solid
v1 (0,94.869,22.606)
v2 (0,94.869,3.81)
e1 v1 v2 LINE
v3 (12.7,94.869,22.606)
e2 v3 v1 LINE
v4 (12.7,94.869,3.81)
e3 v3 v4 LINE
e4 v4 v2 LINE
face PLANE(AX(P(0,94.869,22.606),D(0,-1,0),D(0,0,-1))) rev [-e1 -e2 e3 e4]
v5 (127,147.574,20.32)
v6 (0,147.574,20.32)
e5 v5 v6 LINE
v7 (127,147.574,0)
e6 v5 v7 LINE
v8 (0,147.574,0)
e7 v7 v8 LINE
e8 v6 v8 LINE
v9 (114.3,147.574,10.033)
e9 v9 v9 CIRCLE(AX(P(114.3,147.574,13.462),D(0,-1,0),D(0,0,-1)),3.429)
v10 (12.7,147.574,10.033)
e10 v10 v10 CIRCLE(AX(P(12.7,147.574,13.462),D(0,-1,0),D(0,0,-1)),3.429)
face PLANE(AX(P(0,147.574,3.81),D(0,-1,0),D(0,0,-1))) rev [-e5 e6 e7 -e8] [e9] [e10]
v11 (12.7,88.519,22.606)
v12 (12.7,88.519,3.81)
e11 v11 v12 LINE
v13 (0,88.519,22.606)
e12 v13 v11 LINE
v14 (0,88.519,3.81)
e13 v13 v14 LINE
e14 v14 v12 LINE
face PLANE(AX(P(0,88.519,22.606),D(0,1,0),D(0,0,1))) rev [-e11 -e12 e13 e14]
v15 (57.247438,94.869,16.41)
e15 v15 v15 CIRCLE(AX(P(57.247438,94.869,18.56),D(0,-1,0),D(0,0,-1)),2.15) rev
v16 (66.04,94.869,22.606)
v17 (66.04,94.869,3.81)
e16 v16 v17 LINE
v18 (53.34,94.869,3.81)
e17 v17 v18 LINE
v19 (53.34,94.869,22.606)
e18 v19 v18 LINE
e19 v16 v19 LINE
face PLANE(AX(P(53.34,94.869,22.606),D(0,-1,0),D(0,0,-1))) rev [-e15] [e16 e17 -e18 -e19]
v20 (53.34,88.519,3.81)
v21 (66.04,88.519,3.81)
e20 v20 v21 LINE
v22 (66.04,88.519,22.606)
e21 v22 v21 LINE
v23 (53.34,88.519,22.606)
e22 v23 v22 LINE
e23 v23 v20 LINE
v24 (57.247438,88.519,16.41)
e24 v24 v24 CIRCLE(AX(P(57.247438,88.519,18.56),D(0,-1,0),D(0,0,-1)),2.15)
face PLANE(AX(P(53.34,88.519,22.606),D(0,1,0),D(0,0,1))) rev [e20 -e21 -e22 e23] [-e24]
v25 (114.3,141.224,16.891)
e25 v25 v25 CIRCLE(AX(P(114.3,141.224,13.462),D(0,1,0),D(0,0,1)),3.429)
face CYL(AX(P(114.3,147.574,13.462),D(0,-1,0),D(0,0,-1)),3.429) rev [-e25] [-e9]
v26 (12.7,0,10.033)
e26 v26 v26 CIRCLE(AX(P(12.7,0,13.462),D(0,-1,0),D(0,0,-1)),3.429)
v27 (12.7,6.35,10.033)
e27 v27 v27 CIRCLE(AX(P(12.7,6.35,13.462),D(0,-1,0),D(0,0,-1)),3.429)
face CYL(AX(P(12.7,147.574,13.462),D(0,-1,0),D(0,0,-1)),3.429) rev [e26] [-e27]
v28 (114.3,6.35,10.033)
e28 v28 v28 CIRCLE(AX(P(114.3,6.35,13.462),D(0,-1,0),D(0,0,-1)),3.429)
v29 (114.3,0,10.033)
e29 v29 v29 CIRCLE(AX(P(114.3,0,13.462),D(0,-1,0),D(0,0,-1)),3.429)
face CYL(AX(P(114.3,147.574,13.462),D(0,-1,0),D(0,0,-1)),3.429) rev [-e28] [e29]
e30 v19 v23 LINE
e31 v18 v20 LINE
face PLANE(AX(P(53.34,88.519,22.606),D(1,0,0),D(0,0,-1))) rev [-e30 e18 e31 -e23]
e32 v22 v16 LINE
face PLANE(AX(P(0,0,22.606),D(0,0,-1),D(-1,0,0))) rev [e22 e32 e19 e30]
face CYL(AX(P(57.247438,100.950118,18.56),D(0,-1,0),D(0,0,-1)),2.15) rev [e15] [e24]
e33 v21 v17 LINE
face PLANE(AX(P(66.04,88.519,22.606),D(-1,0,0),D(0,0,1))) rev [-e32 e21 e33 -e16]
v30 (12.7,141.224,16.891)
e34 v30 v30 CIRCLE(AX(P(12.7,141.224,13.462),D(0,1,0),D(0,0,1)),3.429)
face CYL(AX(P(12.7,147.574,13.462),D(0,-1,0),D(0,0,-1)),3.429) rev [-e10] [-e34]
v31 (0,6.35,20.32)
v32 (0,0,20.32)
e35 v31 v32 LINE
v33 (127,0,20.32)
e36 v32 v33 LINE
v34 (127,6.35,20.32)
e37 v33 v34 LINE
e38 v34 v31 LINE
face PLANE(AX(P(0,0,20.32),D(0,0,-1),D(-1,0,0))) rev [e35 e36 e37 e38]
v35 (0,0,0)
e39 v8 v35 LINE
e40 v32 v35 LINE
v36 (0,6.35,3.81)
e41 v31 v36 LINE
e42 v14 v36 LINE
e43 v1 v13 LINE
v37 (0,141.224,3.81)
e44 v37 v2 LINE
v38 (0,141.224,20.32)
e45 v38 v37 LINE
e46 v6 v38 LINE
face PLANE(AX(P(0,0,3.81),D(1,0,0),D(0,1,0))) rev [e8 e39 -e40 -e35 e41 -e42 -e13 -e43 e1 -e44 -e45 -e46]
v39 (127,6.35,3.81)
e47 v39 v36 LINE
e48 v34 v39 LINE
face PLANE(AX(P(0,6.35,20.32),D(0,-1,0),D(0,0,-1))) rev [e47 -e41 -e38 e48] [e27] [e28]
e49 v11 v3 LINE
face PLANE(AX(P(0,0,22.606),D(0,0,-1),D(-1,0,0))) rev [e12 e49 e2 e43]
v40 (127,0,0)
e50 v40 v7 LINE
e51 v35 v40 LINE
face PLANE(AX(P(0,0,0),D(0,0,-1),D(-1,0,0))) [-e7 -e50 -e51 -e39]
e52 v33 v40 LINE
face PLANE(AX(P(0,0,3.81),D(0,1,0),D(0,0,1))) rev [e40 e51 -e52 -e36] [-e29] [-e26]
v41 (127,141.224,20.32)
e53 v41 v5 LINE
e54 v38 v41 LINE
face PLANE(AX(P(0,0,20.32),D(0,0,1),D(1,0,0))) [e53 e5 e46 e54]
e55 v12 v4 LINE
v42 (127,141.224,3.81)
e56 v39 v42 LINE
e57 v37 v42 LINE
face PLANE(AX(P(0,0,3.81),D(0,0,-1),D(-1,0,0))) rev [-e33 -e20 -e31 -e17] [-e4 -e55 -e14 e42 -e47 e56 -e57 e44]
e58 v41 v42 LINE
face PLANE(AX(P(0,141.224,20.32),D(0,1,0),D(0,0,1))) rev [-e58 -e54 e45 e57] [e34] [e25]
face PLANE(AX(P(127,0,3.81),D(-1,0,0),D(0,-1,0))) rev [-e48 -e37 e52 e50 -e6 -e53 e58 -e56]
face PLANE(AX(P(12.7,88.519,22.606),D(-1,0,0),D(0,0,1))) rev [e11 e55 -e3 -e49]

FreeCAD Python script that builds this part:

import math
import FreeCAD as App
import Part
import Sketcher
from FreeCAD import Vector
Q = App.Units.Quantity


def add_polygon(sketch, points):
    """Adds a closed chain of lines whose ends are joined by coincident constraints."""
    first, n = sketch.GeometryCount, len(points)
    for a, b in zip(points, points[1:] + points[:1]):
        sketch.addGeometry(Part.LineSegment(App.Vector(*a, 0), App.Vector(*b, 0)), False)
    for i in range(n):
        sketch.addConstraint(Sketcher.Constraint("Coincident", first + i, 2, first + (i + 1) % n, 1))

doc = App.newDocument("Part")
body = doc.addObject("PartDesign::Body", "Body")

# Sketch on XY plane
sketch1 = body.newObject("Sketcher::SketchObject", "Sketch")
sketch1.AttachmentSupport = (doc.getObject("XY_Plane"), [""])
sketch1.MapMode = "FlatFace"
add_polygon(sketch1, [(0, 148), (0, 0), (127, 0), (127, 148)])  # lines 0-3
sketch1.addConstraint(Sketcher.Constraint("Vertical", 0))
sketch1.addConstraint(Sketcher.Constraint("Horizontal", 1))
sketch1.addConstraint(Sketcher.Constraint("Vertical", 2))
sketch1.addConstraint(Sketcher.Constraint("Horizontal", 3))
sketch1.addConstraint(Sketcher.Constraint("Coincident", 0, 2, -1, 1))
sketch1.addConstraint(Sketcher.Constraint("DistanceX", 1, 1, 1, 2, Q("5 in")))
sketch1.addConstraint(Sketcher.Constraint("DistanceY", 0, 2, 0, 1, Q("5.81 in")))
pad1 = body.newObject("PartDesign::Pad", "Pad")
pad1.Profile = sketch1
pad1.Length = Q("0.15 in")

# Sketch on XY plane
sketch2 = body.newObject("Sketcher::SketchObject", "Sketch001")
sketch2.AttachmentSupport = (doc.getObject("XY_Plane"), [""])
sketch2.MapMode = "FlatFace"
sketch2.AttachmentOffset = App.Placement(Vector(0, 0, 0.15 * 25.4), App.Rotation())
add_polygon(sketch2, [(0, 148), (0, 141), (127, 141), (127, 148)])  # lines 0-3
add_polygon(sketch2, [(0, 6), (0, 0), (127, 0), (127, 6)])  # lines 4-7
sketch2.addConstraint(Sketcher.Constraint("Vertical", 0))
sketch2.addConstraint(Sketcher.Constraint("Horizontal", 1))
sketch2.addConstraint(Sketcher.Constraint("Vertical", 2))
sketch2.addConstraint(Sketcher.Constraint("Horizontal", 3))
sketch2.addConstraint(Sketcher.Constraint("Vertical", 4))
sketch2.addConstraint(Sketcher.Constraint("Horizontal", 5))
sketch2.addConstraint(Sketcher.Constraint("Vertical", 6))
sketch2.addConstraint(Sketcher.Constraint("Horizontal", 7))
sketch2.addConstraint(Sketcher.Constraint("Coincident", 4, 2, -1, 1))
sketch2.addConstraint(Sketcher.Constraint("PointOnObject", 0, 2, -2))
sketch2.addConstraint(Sketcher.Constraint("Vertical", 2, 2, 5, 2))
sketch2.addConstraint(Sketcher.Constraint("Equal", 2, 4))
sketch2.addConstraint(Sketcher.Constraint("DistanceX", 1, 1, 1, 2, Q("5 in")))
sketch2.addConstraint(Sketcher.Constraint("DistanceY", 0, 2, 0, 1, Q("0.25 in")))
sketch2.addConstraint(Sketcher.Constraint("DistanceY", -1, 1, 0, 2, Q("5.56 in")))
pad2 = body.newObject("PartDesign::Pad", "Pad001")
pad2.Profile = sketch2
pad2.Length = Q("0.65 in")

# Sketch on XZ plane
sketch3 = body.newObject("Sketcher::SketchObject", "Sketch002")
sketch3.AttachmentSupport = (doc.getObject("XZ_Plane"), [""])
sketch3.MapMode = "FlatFace"
sketch3.addGeometry(Part.Circle(Vector(12.7, 13.5, 0), Vector(0, 0, 1), 3.4), False)
sketch3.addGeometry(Part.Circle(Vector(114.3, 13.5, 0), Vector(0, 0, 1), 3.4), False)
sketch3.addConstraint(Sketcher.Constraint("Equal", 0, 1))
sketch3.addConstraint(Sketcher.Constraint("Horizontal", 0, 3, 1, 3))
sketch3.addConstraint(Sketcher.Constraint("Diameter", 0, Q("0.27 in")))
sketch3.addConstraint(Sketcher.Constraint("DistanceX", 0, 3, 1, 3, Q("4 in")))
sketch3.addConstraint(Sketcher.Constraint("DistanceX", -1, 1, 0, 3, Q("0.5 in")))
sketch3.addConstraint(Sketcher.Constraint("DistanceY", -1, 1, 0, 3, Q("0.53 in")))
pocket1 = body.newObject("PartDesign::Pocket", "Pocket")
pocket1.Profile = sketch3
pocket1.Type = "ThroughAll"

# Sketch on XY plane
sketch4 = body.newObject("Sketcher::SketchObject", "Sketch003")
sketch4.AttachmentSupport = (doc.getObject("XY_Plane"), [""])
sketch4.MapMode = "FlatFace"
sketch4.AttachmentOffset = App.Placement(Vector(0, 0, 0.15 * 25.4), App.Rotation())
add_polygon(sketch4, [(0, 95), (0, 89), (13, 89), (13, 95)])  # lines 0-3
add_polygon(sketch4, [(53, 95), (53, 89), (66, 89), (66, 95)])  # lines 4-7
sketch4.addConstraint(Sketcher.Constraint("Vertical", 0))
sketch4.addConstraint(Sketcher.Constraint("Horizontal", 1))
sketch4.addConstraint(Sketcher.Constraint("Vertical", 2))
sketch4.addConstraint(Sketcher.Constraint("Horizontal", 3))
sketch4.addConstraint(Sketcher.Constraint("Vertical", 4))
sketch4.addConstraint(Sketcher.Constraint("Horizontal", 5))
sketch4.addConstraint(Sketcher.Constraint("Vertical", 6))
sketch4.addConstraint(Sketcher.Constraint("Horizontal", 7))
sketch4.addConstraint(Sketcher.Constraint("PointOnObject", 0, 2, -2))
sketch4.addConstraint(Sketcher.Constraint("Horizontal", 1, 2, 4, 2))
sketch4.addConstraint(Sketcher.Constraint("Horizontal", 3, 2, 6, 2))
sketch4.addConstraint(Sketcher.Constraint("Equal", 3, 5))
sketch4.addConstraint(Sketcher.Constraint("DistanceX", 1, 1, 1, 2, Q("0.5 in")))
sketch4.addConstraint(Sketcher.Constraint("DistanceY", 0, 2, 0, 1, Q("0.25 in")))
sketch4.addConstraint(Sketcher.Constraint("DistanceX", -1, 1, 4, 2, Q("2.1 in")))
sketch4.addConstraint(Sketcher.Constraint("DistanceY", -1, 1, 0, 2, Q("3.485 in")))
pad3 = body.newObject("PartDesign::Pad", "Pad002")
pad3.Profile = sketch4
pad3.Length = Q("0.74 in")

# Sketch on XZ plane
sketch5 = body.newObject("Sketcher::SketchObject", "Sketch004")
sketch5.AttachmentSupport = (doc.getObject("XZ_Plane"), [""])
sketch5.MapMode = "FlatFace"
sketch5.AttachmentOffset = App.Placement(Vector(0, 0, -3.485 * 25.4), App.Rotation())
sketch5.addGeometry(Part.ArcOfCircle(Part.Circle(Vector(57.247, 18.56, 0), Vector(0, 0, 1), 2.15), math.radians(-25), math.radians(24)), False)
sketch5.addGeometry(Part.ArcOfCircle(Part.Circle(Vector(57.247, 18.56, 0), Vector(0, 0, 1), 2.15), math.radians(23.64), math.radians(24.75)), False)
sketch5.addGeometry(Part.ArcOfCircle(Part.Circle(Vector(57.247, 18.56, 0), Vector(0, 0, 1), 2.15), math.radians(25), math.radians(335)), False)
sketch5.addConstraint(Sketcher.Constraint("Tangent", 0, 2, 1, 1))
sketch5.addConstraint(Sketcher.Constraint("Tangent", 1, 2, 2, 1))
sketch5.addConstraint(Sketcher.Constraint("Tangent", 2, 2, 0, 1))
sketch5.addConstraint(Sketcher.Constraint("Vertical", 1, 2, 2, 2))
sketch5.addConstraint(Sketcher.Constraint("Radius", 0, 2.15))
sketch5.addConstraint(Sketcher.Constraint("DistanceY", -1, 1, 0, 3, 18.56))
sketch5.addConstraint(Sketcher.Constraint("DistanceX", -1, 1, 1, 2, 59.2))
sketch5.addConstraint(Sketcher.Constraint("DistanceY", -1, 1, 1, 2, 19.46))
sketch5.addConstraint(Sketcher.Constraint("DistanceY", 1, 3, 0, 2, 0.862269))
pocket2 = body.newObject("PartDesign::Pocket", "Pocket001")
pocket2.Profile = sketch5
pocket2.Length = Q("0.25 in")

doc.recompute()
